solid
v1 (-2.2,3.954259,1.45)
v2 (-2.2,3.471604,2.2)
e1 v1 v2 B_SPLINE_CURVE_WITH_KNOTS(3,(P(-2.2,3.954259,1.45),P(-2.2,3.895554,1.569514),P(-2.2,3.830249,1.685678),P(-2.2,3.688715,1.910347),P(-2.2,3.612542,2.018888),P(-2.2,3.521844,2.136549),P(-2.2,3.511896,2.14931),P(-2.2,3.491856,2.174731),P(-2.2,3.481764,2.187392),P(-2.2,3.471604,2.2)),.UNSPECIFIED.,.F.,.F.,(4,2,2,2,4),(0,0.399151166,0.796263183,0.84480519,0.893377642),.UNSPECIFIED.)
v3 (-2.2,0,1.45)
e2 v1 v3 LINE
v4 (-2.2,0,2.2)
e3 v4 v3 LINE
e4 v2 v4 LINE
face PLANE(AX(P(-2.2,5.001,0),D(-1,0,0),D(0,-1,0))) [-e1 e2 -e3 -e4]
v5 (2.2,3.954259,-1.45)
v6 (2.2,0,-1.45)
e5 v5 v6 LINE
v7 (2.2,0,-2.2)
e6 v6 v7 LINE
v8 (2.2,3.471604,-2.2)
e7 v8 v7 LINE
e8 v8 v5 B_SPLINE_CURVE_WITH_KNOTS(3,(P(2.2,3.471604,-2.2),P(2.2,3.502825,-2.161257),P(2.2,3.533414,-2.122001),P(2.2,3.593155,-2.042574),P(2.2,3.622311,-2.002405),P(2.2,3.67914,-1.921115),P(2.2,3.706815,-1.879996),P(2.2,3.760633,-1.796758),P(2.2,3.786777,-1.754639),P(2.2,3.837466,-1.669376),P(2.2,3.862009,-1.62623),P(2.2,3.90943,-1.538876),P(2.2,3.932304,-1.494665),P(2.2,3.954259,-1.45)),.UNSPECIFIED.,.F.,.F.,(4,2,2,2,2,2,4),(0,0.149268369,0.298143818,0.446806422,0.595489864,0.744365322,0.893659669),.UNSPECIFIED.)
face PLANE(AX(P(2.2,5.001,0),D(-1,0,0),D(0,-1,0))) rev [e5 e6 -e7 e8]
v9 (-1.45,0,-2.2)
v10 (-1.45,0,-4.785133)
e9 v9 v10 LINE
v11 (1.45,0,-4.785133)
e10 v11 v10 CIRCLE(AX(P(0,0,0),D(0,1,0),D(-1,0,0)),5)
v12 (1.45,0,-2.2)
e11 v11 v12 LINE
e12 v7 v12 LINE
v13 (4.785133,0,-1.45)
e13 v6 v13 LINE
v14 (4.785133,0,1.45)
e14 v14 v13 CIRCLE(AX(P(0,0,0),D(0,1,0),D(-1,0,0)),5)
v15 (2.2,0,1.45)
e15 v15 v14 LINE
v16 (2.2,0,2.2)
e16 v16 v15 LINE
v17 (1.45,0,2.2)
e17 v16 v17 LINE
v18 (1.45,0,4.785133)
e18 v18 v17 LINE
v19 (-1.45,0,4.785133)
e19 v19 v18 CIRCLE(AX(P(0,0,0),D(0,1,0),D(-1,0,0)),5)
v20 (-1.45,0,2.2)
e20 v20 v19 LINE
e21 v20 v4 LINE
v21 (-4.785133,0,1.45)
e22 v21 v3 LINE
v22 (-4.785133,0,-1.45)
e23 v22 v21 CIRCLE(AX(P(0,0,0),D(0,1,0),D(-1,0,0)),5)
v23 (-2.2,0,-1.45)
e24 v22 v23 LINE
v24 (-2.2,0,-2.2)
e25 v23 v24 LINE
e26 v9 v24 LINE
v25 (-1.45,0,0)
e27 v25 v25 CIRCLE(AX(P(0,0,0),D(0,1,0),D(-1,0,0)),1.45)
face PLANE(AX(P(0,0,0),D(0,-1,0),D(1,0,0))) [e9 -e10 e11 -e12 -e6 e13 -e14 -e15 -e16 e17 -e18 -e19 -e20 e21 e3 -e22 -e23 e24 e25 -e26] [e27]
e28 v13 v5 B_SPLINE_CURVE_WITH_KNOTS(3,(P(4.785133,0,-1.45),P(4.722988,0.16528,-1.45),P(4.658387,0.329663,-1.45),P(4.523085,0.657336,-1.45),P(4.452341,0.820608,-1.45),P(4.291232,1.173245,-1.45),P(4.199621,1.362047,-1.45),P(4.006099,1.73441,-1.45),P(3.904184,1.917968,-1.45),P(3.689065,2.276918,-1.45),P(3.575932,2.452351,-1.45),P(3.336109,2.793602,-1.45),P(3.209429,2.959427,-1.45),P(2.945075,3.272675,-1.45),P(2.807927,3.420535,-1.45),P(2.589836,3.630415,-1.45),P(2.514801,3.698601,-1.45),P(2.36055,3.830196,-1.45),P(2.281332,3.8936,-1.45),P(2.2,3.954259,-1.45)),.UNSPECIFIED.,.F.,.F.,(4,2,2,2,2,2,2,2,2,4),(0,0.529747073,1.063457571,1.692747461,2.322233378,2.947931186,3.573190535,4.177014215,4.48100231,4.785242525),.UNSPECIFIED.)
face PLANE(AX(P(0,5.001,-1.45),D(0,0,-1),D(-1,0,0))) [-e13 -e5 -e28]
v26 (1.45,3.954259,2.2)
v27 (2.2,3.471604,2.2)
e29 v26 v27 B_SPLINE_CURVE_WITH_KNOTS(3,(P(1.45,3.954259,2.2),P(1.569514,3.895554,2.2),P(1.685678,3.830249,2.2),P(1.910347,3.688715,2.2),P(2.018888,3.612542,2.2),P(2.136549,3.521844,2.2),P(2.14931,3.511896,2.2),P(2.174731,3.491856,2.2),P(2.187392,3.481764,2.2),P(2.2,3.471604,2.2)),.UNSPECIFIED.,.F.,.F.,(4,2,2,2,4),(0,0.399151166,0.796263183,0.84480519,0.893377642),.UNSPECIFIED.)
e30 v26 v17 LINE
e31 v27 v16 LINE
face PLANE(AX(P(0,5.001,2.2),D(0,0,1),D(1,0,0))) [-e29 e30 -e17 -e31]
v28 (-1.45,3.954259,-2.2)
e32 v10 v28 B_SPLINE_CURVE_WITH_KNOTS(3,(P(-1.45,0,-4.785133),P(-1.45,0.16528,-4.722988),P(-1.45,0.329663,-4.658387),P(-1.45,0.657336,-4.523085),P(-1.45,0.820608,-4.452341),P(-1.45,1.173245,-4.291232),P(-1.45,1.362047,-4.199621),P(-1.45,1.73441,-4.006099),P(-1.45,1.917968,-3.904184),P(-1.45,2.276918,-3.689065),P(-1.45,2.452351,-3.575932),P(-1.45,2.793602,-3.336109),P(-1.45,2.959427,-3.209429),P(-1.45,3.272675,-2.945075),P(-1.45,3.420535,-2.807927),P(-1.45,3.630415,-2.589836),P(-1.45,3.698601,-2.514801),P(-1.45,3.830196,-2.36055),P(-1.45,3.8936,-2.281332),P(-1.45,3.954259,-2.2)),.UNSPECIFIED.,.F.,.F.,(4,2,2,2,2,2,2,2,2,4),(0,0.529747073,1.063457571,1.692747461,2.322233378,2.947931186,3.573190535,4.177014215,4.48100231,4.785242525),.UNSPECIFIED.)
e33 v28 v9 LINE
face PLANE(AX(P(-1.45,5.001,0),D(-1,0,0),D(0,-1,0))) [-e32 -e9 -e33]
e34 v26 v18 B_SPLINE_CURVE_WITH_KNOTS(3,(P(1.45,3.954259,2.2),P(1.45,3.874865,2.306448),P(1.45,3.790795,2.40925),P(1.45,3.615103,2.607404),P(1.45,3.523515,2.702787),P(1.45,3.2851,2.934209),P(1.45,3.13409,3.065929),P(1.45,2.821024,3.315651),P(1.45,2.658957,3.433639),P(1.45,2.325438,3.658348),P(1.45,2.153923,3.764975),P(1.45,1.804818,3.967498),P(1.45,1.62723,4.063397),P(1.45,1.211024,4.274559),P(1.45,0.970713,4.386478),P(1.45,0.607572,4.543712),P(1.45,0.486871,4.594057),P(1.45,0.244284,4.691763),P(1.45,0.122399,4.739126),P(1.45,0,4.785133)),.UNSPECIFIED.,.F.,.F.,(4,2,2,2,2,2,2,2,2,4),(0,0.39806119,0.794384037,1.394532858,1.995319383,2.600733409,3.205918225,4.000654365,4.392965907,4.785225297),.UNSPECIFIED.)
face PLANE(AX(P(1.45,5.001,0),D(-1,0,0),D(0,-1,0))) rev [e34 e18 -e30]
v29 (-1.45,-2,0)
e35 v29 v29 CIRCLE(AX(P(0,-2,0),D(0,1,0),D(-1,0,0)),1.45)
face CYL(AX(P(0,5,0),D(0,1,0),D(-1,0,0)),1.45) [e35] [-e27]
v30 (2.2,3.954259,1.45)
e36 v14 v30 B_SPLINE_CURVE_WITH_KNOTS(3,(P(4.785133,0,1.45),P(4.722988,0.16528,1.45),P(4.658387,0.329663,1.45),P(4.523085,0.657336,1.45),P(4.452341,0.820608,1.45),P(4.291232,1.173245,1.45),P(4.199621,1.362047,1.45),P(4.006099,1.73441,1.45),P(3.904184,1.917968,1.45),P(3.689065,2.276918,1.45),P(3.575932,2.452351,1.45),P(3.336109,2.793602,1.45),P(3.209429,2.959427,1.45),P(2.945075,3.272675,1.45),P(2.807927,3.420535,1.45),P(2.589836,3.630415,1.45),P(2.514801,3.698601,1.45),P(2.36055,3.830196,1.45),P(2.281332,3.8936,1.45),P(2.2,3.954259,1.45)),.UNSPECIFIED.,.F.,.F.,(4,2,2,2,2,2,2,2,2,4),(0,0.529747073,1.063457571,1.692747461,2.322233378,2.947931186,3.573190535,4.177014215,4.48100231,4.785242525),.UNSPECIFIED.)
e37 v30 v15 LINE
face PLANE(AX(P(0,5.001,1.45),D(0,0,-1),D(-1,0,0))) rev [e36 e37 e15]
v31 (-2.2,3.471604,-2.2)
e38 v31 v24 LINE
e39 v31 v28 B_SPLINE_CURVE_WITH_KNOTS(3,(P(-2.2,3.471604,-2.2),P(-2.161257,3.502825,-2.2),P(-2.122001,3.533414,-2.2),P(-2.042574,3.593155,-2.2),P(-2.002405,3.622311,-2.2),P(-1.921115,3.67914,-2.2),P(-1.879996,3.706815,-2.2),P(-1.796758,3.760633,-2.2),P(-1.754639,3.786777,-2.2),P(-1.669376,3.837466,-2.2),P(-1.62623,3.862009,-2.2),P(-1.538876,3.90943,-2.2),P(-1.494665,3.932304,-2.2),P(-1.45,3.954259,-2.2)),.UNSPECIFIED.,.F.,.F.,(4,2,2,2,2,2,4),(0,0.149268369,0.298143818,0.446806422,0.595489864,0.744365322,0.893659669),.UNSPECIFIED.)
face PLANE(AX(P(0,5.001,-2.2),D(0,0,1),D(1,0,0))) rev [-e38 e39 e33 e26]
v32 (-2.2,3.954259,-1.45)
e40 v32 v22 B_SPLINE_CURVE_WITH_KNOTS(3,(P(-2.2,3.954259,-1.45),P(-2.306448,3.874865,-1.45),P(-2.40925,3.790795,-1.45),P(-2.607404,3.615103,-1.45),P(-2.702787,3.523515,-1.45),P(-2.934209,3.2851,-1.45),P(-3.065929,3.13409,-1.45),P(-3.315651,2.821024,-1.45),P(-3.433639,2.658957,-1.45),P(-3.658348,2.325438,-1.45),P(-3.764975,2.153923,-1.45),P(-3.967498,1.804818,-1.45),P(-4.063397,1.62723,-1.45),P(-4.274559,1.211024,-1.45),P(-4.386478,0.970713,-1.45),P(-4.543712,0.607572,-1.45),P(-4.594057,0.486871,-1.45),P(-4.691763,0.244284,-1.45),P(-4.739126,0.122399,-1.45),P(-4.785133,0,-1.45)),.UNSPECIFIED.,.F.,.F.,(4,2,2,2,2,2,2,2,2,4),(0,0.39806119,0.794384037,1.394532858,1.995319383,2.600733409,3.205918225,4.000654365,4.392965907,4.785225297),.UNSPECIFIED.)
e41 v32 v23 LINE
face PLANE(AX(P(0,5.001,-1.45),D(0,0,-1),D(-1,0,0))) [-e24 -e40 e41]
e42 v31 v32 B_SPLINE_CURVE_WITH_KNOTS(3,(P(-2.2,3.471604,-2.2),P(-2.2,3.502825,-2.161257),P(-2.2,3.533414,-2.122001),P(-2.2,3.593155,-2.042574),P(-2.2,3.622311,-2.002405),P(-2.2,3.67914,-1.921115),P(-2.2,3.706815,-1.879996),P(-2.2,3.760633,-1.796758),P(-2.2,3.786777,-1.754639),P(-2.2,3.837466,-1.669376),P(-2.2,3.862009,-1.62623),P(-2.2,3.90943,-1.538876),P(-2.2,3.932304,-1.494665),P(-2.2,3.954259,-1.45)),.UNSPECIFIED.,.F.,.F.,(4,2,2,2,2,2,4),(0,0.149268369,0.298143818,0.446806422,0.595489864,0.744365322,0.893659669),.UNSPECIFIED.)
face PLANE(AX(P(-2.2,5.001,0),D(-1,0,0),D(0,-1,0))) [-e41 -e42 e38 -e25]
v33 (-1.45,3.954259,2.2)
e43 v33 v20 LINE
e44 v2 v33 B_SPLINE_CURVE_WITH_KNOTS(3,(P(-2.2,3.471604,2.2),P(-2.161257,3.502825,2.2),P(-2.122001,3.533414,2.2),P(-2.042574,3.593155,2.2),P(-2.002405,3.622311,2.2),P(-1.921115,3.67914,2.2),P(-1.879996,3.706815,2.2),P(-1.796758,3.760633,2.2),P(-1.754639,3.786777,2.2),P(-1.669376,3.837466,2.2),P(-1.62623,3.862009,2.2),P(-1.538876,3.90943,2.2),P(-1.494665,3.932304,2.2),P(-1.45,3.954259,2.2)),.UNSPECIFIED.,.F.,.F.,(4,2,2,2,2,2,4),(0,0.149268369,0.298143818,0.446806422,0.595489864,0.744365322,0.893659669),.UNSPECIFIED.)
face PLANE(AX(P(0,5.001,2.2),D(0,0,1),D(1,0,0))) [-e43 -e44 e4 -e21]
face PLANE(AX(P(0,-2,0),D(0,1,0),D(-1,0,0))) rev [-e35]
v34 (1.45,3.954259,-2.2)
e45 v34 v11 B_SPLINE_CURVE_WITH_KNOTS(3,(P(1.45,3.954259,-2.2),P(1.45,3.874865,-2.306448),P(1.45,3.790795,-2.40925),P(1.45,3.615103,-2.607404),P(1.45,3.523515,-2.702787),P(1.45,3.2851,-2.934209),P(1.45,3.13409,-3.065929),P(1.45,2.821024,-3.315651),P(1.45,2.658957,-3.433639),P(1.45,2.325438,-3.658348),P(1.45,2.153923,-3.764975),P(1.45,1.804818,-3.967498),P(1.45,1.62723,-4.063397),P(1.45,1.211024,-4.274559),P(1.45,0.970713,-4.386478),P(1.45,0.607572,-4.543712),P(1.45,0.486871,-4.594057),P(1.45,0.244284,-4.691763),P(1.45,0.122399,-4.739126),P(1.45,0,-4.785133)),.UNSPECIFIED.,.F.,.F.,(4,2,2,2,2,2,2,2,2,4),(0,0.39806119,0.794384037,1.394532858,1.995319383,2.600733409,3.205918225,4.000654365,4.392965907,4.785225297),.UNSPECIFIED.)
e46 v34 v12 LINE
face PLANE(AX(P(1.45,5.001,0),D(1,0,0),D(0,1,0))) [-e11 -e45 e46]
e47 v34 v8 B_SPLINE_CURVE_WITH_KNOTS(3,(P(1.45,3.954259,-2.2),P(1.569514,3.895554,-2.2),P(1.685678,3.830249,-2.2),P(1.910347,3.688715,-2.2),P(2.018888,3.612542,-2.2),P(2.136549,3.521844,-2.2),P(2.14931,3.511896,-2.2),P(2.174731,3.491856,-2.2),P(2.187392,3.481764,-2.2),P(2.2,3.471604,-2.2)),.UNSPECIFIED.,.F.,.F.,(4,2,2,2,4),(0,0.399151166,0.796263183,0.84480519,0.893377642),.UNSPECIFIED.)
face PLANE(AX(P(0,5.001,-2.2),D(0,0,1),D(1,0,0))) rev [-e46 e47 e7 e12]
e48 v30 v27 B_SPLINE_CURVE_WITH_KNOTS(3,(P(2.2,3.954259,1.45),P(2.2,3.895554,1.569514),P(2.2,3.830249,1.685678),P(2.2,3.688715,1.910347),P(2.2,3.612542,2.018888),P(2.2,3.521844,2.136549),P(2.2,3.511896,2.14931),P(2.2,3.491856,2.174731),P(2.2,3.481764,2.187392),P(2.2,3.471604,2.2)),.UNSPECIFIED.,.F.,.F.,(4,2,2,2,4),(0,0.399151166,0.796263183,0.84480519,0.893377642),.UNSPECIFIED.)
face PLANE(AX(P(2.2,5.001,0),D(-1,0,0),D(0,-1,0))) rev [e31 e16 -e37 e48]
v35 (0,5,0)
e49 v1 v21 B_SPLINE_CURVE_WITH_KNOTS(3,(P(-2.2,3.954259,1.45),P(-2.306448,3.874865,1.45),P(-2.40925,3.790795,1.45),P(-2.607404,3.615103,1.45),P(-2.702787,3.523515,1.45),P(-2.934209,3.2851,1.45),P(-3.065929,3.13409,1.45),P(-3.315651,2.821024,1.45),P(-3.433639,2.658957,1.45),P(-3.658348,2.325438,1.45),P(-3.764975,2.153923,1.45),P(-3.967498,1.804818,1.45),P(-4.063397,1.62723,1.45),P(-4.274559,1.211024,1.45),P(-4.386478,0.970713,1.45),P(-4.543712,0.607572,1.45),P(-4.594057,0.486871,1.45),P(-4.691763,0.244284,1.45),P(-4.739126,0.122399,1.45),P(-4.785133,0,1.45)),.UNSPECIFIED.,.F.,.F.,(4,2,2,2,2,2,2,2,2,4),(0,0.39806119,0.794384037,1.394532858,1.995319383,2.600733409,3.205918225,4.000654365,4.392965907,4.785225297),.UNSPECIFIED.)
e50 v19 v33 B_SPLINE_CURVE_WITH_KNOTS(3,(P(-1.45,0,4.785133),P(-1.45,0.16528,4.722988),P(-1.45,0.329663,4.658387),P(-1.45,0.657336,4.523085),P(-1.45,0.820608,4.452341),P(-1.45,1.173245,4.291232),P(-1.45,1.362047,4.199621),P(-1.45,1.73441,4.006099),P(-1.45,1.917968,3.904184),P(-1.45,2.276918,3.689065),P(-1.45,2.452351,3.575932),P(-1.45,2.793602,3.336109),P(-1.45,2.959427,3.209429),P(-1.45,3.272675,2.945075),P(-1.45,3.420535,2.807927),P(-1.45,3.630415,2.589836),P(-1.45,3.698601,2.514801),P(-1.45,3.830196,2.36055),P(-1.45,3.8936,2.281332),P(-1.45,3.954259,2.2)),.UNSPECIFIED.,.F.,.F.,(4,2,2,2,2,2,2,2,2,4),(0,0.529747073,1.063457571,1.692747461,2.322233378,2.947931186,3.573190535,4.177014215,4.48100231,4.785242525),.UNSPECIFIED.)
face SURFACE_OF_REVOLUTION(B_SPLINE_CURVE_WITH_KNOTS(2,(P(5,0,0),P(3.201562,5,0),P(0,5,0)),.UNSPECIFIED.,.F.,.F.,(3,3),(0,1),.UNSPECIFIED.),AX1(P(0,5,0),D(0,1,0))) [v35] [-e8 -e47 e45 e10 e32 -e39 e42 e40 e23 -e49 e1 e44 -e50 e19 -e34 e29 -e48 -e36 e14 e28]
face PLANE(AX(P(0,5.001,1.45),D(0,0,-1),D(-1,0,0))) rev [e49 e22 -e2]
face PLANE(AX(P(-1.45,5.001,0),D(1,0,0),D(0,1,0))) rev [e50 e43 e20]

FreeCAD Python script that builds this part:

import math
import FreeCAD as App
import Part
import Sketcher
from FreeCAD import Vector
Q = App.Units.Quantity

doc = App.newDocument("Part")
body = doc.addObject("PartDesign::Body", "Body")

# Sketch on XY plane
sketch1 = body.newObject("Sketcher::SketchObject", "Sketch")
sketch1.AttachmentSupport = (doc.getObject("XY_Plane"), [""])
sketch1.MapMode = "FlatFace"
sketch1.addGeometry([
    Part.BSplineCurve([Vector(5, 0, 0), Vector(3.201562, 5, 0), Vector(0, 5, 0)], [3, 3], [0, 1], False, 2, [1, 1, 1], False),  # 0
    Part.LineSegment(Vector(0, 5, 0), Vector(0, -2, 0)),  # 1
    Part.LineSegment(Vector(0, -2, 0), Vector(1.45, -2, 0)),  # 2
    Part.LineSegment(Vector(1.45, -2, 0), Vector(1.45, 0, 0)),  # 3
    Part.LineSegment(Vector(1.45, 0, 0), Vector(5, 0, 0)),  # 4
], False)
sketch1.addConstraint([
    Sketcher.Constraint("Block", 0),
    Sketcher.Constraint("Coincident", 0, 2, 1, 1),
    Sketcher.Constraint("Coincident", 1, 2, 2, 1),
    Sketcher.Constraint("Coincident", 2, 2, 3, 1),
    Sketcher.Constraint("Coincident", 3, 2, 4, 1),
    Sketcher.Constraint("Coincident", 4, 2, 0, 1),
    Sketcher.Constraint("Vertical", 1),
    Sketcher.Constraint("Horizontal", 2),
    Sketcher.Constraint("Vertical", 3),
    Sketcher.Constraint("Horizontal", 4),
    Sketcher.Constraint("DistanceY", 1, 2, 1, 1, Q("7 mm")),
    Sketcher.Constraint("DistanceX", 2, 1, 2, 2, Q("1.45 mm")),
])
revolution = body.newObject("PartDesign::Revolution", "Revolution")
revolution.Profile = sketch1
revolution.ReferenceAxis = (sketch1, ["V_Axis"])
revolution.Angle = 360

# Sketch on XZ plane
sketch2 = body.newObject("Sketcher::SketchObject", "Sketch001")
sketch2.AttachmentSupport = (doc.getObject("XZ_Plane"), [""])
sketch2.MapMode = "FlatFace"
sketch2.addGeometry([
    Part.LineSegment(Vector(-2.2, 2.2, 0), Vector(-1.45, 2.2, 0)),  # 0
    Part.LineSegment(Vector(-1.45, 2.2, 0), Vector(-1.45, 4.785133, 0)),  # 1
    Part.ArcOfCircle(Part.Circle(Vector(0, 0, 0), Vector(0, 0, 1), 5), math.radians(106.857956), math.radians(163.142044)),  # 2
    Part.LineSegment(Vector(-4.785133, 1.45, 0), Vector(-2.2, 1.45, 0)),  # 3
    Part.LineSegment(Vector(-2.2, 1.45, 0), Vector(-2.2, 2.2, 0)),  # 4
], False)
sketch2.addConstraint([
    Sketcher.Constraint("Coincident", 0, 2, 1, 1),
    Sketcher.Constraint("Coincident", 1, 2, 2, 1),
    Sketcher.Constraint("Coincident", 2, 2, 3, 1),
    Sketcher.Constraint("Coincident", 3, 2, 4, 1),
    Sketcher.Constraint("Coincident", 4, 2, 0, 1),
    Sketcher.Constraint("Horizontal", 0),
    Sketcher.Constraint("Vertical", 1),
    Sketcher.Constraint("Horizontal", 3),
    Sketcher.Constraint("Vertical", 4),
    Sketcher.Constraint("Coincident", 2, 3, -1, 1),
    Sketcher.Constraint("Equal", 3, 1),
    Sketcher.Constraint("Equal", 0, 4),
    Sketcher.Constraint("Radius", 2, Q("5 mm")),
    Sketcher.Constraint("DistanceX", 0, 1, 0, 2, Q("0.75 mm")),
    Sketcher.Constraint("DistanceY", -1, 1, 0, 2, Q("2.2 mm")),
])
pocket1 = body.newObject("PartDesign::Pocket", "Pocket")
pocket1.Profile = sketch2
pocket1.Length = 3.954259

# Sketch on XZ plane
sketch3 = body.newObject("Sketcher::SketchObject", "Sketch002")
sketch3.AttachmentSupport = (doc.getObject("XZ_Plane"), [""])
sketch3.MapMode = "FlatFace"
sketch3.addGeometry([
    Part.LineSegment(Vector(1.45, 2.2, 0), Vector(2.2, 2.2, 0)),  # 0
    Part.LineSegment(Vector(2.2, 2.2, 0), Vector(2.2, 1.45, 0)),  # 1
    Part.LineSegment(Vector(2.2, 1.45, 0), Vector(4.785133, 1.45, 0)),  # 2
    Part.ArcOfCircle(Part.Circle(Vector(0, 0, 0), Vector(0, 0, 1), 5), math.radians(16.857956), math.radians(73.142044)),  # 3
    Part.LineSegment(Vector(1.45, 4.785133, 0), Vector(1.45, 2.2, 0)),  # 4
], False)
sketch3.addConstraint([
    Sketcher.Constraint("Coincident", 0, 2, 1, 1),
    Sketcher.Constraint("Coincident", 1, 2, 2, 1),
    Sketcher.Constraint("Coincident", 2, 2, 3, 1),
    Sketcher.Constraint("Coincident", 3, 2, 4, 1),
    Sketcher.Constraint("Coincident", 4, 2, 0, 1),
    Sketcher.Constraint("Horizontal", 0),
    Sketcher.Constraint("Vertical", 1),
    Sketcher.Constraint("Horizontal", 2),
    Sketcher.Constraint("Vertical", 4),
    Sketcher.Constraint("Coincident", 3, 3, -1, 1),
    Sketcher.Constraint("Equal", 0, 1),
    Sketcher.Constraint("Equal", 2, 4),
    Sketcher.Constraint("Radius", 3, Q("5 mm")),
    Sketcher.Constraint("DistanceX", 0, 1, 0, 2, Q("0.75 mm")),
    Sketcher.Constraint("DistanceX", -1, 1, 0, 2, Q("2.2 mm")),
])
pocket2 = body.newObject("PartDesign::Pocket", "Pocket001")
pocket2.Profile = sketch3
pocket2.Length = 3.954259

# Sketch on XZ plane
sketch4 = body.newObject("Sketcher::SketchObject", "Sketch003")
sketch4.AttachmentSupport = (doc.getObject("XZ_Plane"), [""])
sketch4.MapMode = "FlatFace"
sketch4.addGeometry([
    Part.LineSegment(Vector(4.785133, -1.45, 0), Vector(2.2, -1.45, 0)),  # 0
    Part.LineSegment(Vector(2.2, -1.45, 0), Vector(2.2, -2.2, 0)),  # 1
    Part.LineSegment(Vector(2.2, -2.2, 0), Vector(1.45, -2.2, 0)),  # 2
    Part.LineSegment(Vector(1.45, -2.2, 0), Vector(1.45, -4.785133, 0)),  # 3
    Part.ArcOfCircle(Part.Circle(Vector(0, 0, 0), Vector(0, 0, 1), 5), math.radians(-73.142044), math.radians(-16.857956)),  # 4
], False)
sketch4.addConstraint([
    Sketcher.Constraint("Coincident", 0, 2, 1, 1),
    Sketcher.Constraint("Coincident", 1, 2, 2, 1),
    Sketcher.Constraint("Coincident", 2, 2, 3, 1),
    Sketcher.Constraint("Coincident", 3, 2, 4, 1),
    Sketcher.Constraint("Coincident", 4, 2, 0, 1),
    Sketcher.Constraint("Horizontal", 0),
    Sketcher.Constraint("Vertical", 1),
    Sketcher.Constraint("Horizontal", 2),
    Sketcher.Constraint("Vertical", 3),
    Sketcher.Constraint("Coincident", 4, 3, -1, 1),
    Sketcher.Constraint("Equal", 2, 1),
    Sketcher.Constraint("Equal", 0, 3),
    Sketcher.Constraint("Radius", 4, Q("5 mm")),
    Sketcher.Constraint("DistanceX", 2, 2, 2, 1, Q("0.75 mm")),
    Sketcher.Constraint("DistanceX", -1, 1, 0, 2, Q("2.2 mm")),
])
pocket3 = body.newObject("PartDesign::Pocket", "Pocket002")
pocket3.Profile = sketch4
pocket3.Length = 3.954259

# Sketch on XZ plane
sketch5 = body.newObject("Sketcher::SketchObject", "Sketch004")
sketch5.AttachmentSupport = (doc.getObject("XZ_Plane"), [""])
sketch5.MapMode = "FlatFace"
sketch5.addGeometry([
    Part.LineSegment(Vector(-2.2, -2.2, 0), Vector(-2.2, -1.45, 0)),  # 0
    Part.LineSegment(Vector(-2.2, -1.45, 0), Vector(-4.785133, -1.45, 0)),  # 1
    Part.ArcOfCircle(Part.Circle(Vector(0, 0, 0), Vector(0, 0, 1), 5), math.radians(-163.142044), math.radians(-106.857956)),  # 2
    Part.LineSegment(Vector(-1.45, -4.785133, 0), Vector(-1.45, -2.2, 0)),  # 3
    Part.LineSegment(Vector(-1.45, -2.2, 0), Vector(-2.2, -2.2, 0)),  # 4
], False)
sketch5.addConstraint([
    Sketcher.Constraint("Coincident", 0, 2, 1, 1),
    Sketcher.Constraint("Coincident", 1, 2, 2, 1),
    Sketcher.Constraint("Coincident", 2, 2, 3, 1),
    Sketcher.Constraint("Coincident", 3, 2, 4, 1),
    Sketcher.Constraint("Coincident", 4, 2, 0, 1),
    Sketcher.Constraint("Vertical", 0),
    Sketcher.Constraint("Horizontal", 1),
    Sketcher.Constraint("Vertical", 3),
    Sketcher.Constraint("Horizontal", 4),
    Sketcher.Constraint("Coincident", 2, 3, -1, 1),
    Sketcher.Constraint("Equal", 4, 0),
    Sketcher.Constraint("Equal", 1, 3),
    Sketcher.Constraint("Radius", 2, Q("5 mm")),
    Sketcher.Constraint("DistanceX", 4, 2, 4, 1, Q("0.75 mm")),
    Sketcher.Constraint("DistanceX", 0, 2, -1, 1, Q("2.2 mm")),
])
pocket4 = body.newObject("PartDesign::Pocket", "Pocket003")
pocket4.Profile = sketch5
pocket4.Length = 3.954259

doc.recompute()
